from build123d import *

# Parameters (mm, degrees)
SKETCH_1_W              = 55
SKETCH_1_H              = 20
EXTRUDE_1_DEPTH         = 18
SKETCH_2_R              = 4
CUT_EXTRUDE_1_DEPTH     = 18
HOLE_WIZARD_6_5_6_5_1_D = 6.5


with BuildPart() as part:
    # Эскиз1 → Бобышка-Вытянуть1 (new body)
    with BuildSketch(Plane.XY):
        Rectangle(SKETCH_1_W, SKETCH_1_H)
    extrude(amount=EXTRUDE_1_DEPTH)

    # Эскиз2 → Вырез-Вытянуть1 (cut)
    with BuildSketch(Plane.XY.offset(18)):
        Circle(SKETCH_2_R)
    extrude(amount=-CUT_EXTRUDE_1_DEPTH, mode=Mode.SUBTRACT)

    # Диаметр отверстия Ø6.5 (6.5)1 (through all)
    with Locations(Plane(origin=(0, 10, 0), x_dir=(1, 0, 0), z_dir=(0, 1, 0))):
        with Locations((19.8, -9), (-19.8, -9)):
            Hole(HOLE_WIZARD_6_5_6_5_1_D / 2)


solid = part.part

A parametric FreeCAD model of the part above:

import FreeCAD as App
import Part
import Sketcher
Q = App.Units.Quantity

doc = App.newDocument("Part")
body = doc.addObject("PartDesign::Body", "Body")

sketch1 = body.newObject("Sketcher::SketchObject", "Sketch")
sketch1.AttachmentSupport = (doc.getObject("XY_Plane"), [""])
sketch1.MapMode = "FlatFace"
sketch1.addGeometry([
    Part.LineSegment(App.Vector(-28, 10, 0), App.Vector(-28, -10, 0)),
    Part.LineSegment(App.Vector(-28, -10, 0), App.Vector(28, -10, 0)),
    Part.LineSegment(App.Vector(28, -10, 0), App.Vector(28, 10, 0)),
    Part.LineSegment(App.Vector(28, 10, 0), App.Vector(-28, 10, 0)),
], False)
sketch1.addConstraint([
    Sketcher.Constraint("Coincident", 0, 2, 1, 1),
    Sketcher.Constraint("Coincident", 1, 2, 2, 1),
    Sketcher.Constraint("Coincident", 2, 2, 3, 1),
    Sketcher.Constraint("Coincident", 3, 2, 0, 1),
    Sketcher.Constraint("Vertical", 0),
    Sketcher.Constraint("Horizontal", 1),
    Sketcher.Constraint("Vertical", 2),
    Sketcher.Constraint("Horizontal", 3),
    Sketcher.Constraint("Symmetric", 0, 2, 2, 2, -1, 1),
    Sketcher.Constraint("DistanceX", 1, 1, 1, 2, Q("55 mm")),
    Sketcher.Constraint("DistanceY", 0, 2, 0, 1, Q("20 mm")),
])
pad1 = body.newObject("PartDesign::Pad", "Pad")
pad1.Profile = sketch1
pad1.Length = 18

sketch2 = body.newObject("Sketcher::SketchObject", "Sketch001")
sketch2.AttachmentSupport = (doc.getObject("XY_Plane"), [""])
sketch2.MapMode = "FlatFace"
sketch2.AttachmentOffset = App.Placement(App.Vector(0, 0, 18), App.Rotation())
sketch2.addGeometry(Part.Circle(App.Vector(0, 0, 0), App.Vector(0, 0, 1), 4), False)
sketch2.addConstraint([
    Sketcher.Constraint("Coincident", 0, 3, -1, 1),
    Sketcher.Constraint("Diameter", 0, Q("8 mm")),
])
pocket1 = body.newObject("PartDesign::Pocket", "Pocket")
pocket1.Profile = sketch2
pocket1.Length = 18

sketch3 = body.newObject("Sketcher::SketchObject", "Sketch002")
sketch3.AttachmentSupport = (doc.getObject("XZ_Plane"), [""])
sketch3.MapMode = "FlatFace"
sketch3.AttachmentOffset = App.Placement(App.Vector(0, 0, -10), App.Rotation())
sketch3.addGeometry([
    Part.Circle(App.Vector(19.8, 9, 0), App.Vector(0, 0, 1), 3.2),
    Part.Circle(App.Vector(-19.8, 9, 0), App.Vector(0, 0, 1), 3.2),
], False)
sketch3.addConstraint([
    Sketcher.Constraint("Equal", 0, 1),
    Sketcher.Constraint("Symmetric", 0, 3, 1, 3, -2),
    Sketcher.Constraint("Diameter", 0, Q("6.5 mm")),
    Sketcher.Constraint("DistanceY", -1, 1, 0, 3, Q("9 mm")),
    Sketcher.Constraint("DistanceX", -1, 1, 0, 3, Q("19.8 mm")),
])
doc.recompute()
hole = body.newObject("PartDesign::Hole", "Hole")
hole.Profile = sketch3
hole.ThreadType = "None"
hole.Diameter = 6.5
hole.DepthType = "ThroughAll"
hole.Reversed = True

doc.recompute()
